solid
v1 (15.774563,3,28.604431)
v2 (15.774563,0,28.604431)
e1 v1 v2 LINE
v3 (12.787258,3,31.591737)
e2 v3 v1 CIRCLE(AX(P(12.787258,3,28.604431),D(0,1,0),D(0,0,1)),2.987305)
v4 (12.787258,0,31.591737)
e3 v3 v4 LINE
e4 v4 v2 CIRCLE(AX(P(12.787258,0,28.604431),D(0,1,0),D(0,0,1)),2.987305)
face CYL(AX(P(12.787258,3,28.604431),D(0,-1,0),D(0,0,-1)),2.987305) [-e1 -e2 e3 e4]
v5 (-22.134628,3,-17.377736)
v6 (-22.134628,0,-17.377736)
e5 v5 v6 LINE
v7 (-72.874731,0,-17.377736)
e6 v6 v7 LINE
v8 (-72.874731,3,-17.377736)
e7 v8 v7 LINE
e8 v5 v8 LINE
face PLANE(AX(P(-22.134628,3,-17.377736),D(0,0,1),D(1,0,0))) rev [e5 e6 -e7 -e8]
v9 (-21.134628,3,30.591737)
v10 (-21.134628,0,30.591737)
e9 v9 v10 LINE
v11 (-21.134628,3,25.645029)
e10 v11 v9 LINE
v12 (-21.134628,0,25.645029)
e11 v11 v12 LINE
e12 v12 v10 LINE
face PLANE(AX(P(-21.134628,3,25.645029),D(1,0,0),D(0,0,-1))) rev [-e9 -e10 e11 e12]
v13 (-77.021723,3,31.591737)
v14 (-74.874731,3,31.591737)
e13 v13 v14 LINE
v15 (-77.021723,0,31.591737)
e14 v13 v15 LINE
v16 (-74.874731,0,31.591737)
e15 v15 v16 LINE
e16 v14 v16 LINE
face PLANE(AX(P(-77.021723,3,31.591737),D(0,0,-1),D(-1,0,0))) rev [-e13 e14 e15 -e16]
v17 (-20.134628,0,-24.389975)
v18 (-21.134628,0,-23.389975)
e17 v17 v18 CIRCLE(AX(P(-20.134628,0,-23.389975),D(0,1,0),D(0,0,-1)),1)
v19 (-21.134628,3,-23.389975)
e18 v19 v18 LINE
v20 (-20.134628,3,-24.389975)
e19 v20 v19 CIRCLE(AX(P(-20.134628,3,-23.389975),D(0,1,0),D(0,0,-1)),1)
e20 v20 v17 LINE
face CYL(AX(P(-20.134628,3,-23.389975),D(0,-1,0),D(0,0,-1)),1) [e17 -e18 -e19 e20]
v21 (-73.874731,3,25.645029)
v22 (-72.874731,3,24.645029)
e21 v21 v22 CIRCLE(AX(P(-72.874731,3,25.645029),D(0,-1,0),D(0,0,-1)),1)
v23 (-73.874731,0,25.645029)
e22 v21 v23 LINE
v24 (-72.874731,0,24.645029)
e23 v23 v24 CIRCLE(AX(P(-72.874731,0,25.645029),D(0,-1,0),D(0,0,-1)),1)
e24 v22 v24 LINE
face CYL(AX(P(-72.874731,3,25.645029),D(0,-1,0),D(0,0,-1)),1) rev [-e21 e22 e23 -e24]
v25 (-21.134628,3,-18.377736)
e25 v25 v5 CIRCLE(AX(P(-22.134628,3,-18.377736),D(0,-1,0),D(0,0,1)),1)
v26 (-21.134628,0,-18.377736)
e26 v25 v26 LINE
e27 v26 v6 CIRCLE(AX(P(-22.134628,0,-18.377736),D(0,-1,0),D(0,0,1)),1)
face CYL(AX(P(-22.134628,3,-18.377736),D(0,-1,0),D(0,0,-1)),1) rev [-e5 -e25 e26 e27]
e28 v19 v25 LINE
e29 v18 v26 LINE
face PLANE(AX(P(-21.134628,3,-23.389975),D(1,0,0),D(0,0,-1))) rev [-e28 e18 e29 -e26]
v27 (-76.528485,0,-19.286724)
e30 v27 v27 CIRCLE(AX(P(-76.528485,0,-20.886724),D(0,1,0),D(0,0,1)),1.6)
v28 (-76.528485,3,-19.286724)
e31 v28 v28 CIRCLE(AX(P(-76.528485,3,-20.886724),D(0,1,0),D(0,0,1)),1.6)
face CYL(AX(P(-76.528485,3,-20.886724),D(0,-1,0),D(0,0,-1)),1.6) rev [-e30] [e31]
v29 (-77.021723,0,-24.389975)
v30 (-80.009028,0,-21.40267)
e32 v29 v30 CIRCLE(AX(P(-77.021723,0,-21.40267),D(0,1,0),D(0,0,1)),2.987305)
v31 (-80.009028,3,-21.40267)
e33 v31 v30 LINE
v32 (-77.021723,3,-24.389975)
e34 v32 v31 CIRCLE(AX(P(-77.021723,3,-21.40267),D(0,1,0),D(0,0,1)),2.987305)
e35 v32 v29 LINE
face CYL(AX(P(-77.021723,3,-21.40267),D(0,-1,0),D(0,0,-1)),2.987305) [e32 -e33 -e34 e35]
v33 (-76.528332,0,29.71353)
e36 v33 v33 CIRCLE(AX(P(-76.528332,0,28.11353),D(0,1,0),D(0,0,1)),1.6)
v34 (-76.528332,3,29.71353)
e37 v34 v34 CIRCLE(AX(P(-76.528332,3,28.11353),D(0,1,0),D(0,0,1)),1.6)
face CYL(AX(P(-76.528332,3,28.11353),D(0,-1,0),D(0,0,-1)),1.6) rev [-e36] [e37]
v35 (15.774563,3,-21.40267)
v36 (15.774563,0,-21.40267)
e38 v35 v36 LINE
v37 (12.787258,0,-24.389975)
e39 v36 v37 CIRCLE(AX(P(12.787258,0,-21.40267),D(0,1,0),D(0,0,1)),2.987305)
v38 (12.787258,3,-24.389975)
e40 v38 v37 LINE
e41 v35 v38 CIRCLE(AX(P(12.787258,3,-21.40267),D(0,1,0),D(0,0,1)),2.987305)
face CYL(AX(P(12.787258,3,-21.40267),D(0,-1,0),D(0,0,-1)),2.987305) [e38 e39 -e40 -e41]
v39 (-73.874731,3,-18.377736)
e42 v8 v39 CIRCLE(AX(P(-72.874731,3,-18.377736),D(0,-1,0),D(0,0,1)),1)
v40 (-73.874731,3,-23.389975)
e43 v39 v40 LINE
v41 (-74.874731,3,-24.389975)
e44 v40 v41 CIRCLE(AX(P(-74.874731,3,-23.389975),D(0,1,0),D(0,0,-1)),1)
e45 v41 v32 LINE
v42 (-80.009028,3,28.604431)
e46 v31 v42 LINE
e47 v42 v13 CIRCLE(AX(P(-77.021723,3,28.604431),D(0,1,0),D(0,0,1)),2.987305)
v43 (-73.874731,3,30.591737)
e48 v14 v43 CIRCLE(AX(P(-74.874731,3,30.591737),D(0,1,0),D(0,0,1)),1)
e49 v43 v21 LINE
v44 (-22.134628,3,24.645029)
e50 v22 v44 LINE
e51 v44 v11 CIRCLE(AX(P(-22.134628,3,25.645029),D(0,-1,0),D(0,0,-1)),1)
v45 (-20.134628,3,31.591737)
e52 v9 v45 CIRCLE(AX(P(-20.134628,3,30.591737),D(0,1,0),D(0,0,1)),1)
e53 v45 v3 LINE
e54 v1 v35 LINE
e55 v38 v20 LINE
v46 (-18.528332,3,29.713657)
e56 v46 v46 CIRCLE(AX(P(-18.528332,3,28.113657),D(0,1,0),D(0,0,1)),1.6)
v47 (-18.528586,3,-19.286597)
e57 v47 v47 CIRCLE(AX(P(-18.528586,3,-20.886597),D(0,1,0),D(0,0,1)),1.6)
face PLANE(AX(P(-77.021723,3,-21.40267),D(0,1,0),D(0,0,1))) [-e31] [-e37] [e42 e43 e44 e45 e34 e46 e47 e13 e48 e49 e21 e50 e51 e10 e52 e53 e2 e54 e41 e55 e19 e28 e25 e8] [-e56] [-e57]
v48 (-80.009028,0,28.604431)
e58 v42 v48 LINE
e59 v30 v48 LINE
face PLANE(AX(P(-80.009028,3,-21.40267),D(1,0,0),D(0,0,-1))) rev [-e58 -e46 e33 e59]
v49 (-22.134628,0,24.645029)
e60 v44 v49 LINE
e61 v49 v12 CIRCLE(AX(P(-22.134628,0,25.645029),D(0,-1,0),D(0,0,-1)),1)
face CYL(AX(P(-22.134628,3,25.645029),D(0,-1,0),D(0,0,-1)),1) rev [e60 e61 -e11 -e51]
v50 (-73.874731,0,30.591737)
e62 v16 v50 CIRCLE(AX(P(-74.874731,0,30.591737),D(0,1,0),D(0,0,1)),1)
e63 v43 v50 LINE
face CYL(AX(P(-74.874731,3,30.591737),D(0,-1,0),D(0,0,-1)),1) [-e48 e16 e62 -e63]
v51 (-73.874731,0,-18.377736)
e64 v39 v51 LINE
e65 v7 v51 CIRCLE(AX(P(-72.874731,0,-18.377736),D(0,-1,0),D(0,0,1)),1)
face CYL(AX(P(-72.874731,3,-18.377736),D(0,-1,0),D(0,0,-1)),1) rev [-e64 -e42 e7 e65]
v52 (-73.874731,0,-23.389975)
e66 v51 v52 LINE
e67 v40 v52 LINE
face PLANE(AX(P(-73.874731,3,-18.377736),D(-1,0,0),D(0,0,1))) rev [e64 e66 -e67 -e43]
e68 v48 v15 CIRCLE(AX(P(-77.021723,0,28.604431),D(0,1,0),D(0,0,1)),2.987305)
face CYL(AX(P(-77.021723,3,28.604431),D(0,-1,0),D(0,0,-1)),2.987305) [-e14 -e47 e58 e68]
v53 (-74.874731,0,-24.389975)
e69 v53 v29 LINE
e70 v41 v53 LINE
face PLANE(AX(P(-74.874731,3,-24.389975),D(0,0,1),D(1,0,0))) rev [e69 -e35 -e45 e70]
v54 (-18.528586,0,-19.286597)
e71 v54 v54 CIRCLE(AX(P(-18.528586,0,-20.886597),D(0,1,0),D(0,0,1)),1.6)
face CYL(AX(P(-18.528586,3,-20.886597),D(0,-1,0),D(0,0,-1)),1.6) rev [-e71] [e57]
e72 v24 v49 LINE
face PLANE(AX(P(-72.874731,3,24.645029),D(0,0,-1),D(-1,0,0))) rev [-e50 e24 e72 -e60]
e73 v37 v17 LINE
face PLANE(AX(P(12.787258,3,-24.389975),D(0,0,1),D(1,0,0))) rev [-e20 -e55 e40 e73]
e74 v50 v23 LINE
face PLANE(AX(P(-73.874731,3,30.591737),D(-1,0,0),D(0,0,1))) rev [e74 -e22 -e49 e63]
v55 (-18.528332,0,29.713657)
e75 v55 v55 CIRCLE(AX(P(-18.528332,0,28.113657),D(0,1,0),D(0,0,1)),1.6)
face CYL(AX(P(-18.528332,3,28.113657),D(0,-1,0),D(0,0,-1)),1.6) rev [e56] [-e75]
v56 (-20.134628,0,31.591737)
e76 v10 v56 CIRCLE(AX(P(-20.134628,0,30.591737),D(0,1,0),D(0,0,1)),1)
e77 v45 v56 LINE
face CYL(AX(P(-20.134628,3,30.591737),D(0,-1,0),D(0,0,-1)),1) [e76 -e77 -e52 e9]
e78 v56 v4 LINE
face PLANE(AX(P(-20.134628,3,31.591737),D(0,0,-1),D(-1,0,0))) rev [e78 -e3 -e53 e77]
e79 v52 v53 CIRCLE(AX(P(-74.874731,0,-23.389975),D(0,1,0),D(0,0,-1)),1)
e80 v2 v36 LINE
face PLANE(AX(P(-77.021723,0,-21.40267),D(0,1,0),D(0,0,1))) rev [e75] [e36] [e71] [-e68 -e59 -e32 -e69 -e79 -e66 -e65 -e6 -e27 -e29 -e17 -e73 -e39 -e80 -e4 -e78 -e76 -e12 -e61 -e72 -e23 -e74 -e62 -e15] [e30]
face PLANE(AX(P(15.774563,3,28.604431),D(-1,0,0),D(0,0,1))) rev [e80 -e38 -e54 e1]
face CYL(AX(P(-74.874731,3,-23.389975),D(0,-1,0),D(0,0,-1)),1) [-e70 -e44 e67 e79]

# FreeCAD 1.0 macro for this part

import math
import FreeCAD as App
import Part
import Sketcher
Q = App.Units.Quantity

doc = App.newDocument("Part")
body = doc.addObject("PartDesign::Body", "Body")

# Sketch on XZ plane
sketch1 = doc.addObject("Sketcher::SketchObject", "Sketch")
body.addObject(sketch1)
sketch1.AttachmentSupport = (doc.XZ_Plane, [""])
sketch1.MapMode = "FlatFace"
sketch1.addGeometry([
    Part.LineSegment(App.Vector(-21.134628, -23.389975, 0), App.Vector(-21.134628, -18.377736, 0)),  # 0
    Part.ArcOfCircle(Part.Circle(App.Vector(-22.134628, -18.377736, 0), App.Vector(0, 0, 1), 1), math.radians(0), math.radians(90)),  # 1
    Part.LineSegment(App.Vector(-22.134628, -17.377736, 0), App.Vector(-72.874731, -17.377736, 0)),  # 2
    Part.ArcOfCircle(Part.Circle(App.Vector(-72.874731, -18.377736, 0), App.Vector(0, 0, 1), 1), math.radians(90), math.radians(180)),  # 3
    Part.LineSegment(App.Vector(-73.874731, -18.377736, 0), App.Vector(-73.874731, -23.389975, 0)),  # 4
    Part.ArcOfCircle(Part.Circle(App.Vector(-74.874731, -23.389975, 0), App.Vector(0, 0, 1), 1), math.radians(-90), math.radians(0)),  # 5
    Part.LineSegment(App.Vector(-74.874731, -24.389975, 0), App.Vector(-77.021723, -24.389975, 0)),  # 6
    Part.ArcOfCircle(Part.Circle(App.Vector(-77.021723, -21.40267, 0), App.Vector(0, 0, 1), 2.987305), math.radians(180), math.radians(270)),  # 7
    Part.LineSegment(App.Vector(-80.009028, -21.40267, 0), App.Vector(-80.009028, 28.604431, 0)),  # 8
    Part.ArcOfCircle(Part.Circle(App.Vector(-77.021723, 28.604431, 0), App.Vector(0, 0, 1), 2.987305), math.radians(90), math.radians(180)),  # 9
    Part.LineSegment(App.Vector(-77.021723, 31.591737, 0), App.Vector(-74.874731, 31.591737, 0)),  # 10
    Part.ArcOfCircle(Part.Circle(App.Vector(-74.874731, 30.591737, 0), App.Vector(0, 0, 1), 1), math.radians(0), math.radians(90)),  # 11
    Part.LineSegment(App.Vector(-73.874731, 30.591737, 0), App.Vector(-73.874731, 25.645029, 0)),  # 12
    Part.ArcOfCircle(Part.Circle(App.Vector(-72.874731, 25.645029, 0), App.Vector(0, 0, 1), 1), math.radians(-180), math.radians(-90)),  # 13
    Part.LineSegment(App.Vector(-72.874731, 24.645029, 0), App.Vector(-22.134628, 24.645029, 0)),  # 14
    Part.ArcOfCircle(Part.Circle(App.Vector(-22.134628, 25.645029, 0), App.Vector(0, 0, 1), 1), math.radians(-90), math.radians(0)),  # 15
    Part.LineSegment(App.Vector(-21.134628, 25.645029, 0), App.Vector(-21.134628, 30.591737, 0)),  # 16
    Part.ArcOfCircle(Part.Circle(App.Vector(-20.134628, 30.591737, 0), App.Vector(0, 0, 1), 1), math.radians(90), math.radians(180)),  # 17
    Part.LineSegment(App.Vector(-20.134628, 31.591737, 0), App.Vector(12.787258, 31.591737, 0)),  # 18
    Part.ArcOfCircle(Part.Circle(App.Vector(12.787258, 28.604431, 0), App.Vector(0, 0, 1), 2.987305), math.radians(0), math.radians(90)),  # 19
    Part.LineSegment(App.Vector(15.774563, 28.604431, 0), App.Vector(15.774563, -21.40267, 0)),  # 20
    Part.ArcOfCircle(Part.Circle(App.Vector(12.787258, -21.40267, 0), App.Vector(0, 0, 1), 2.987305), math.radians(-90), math.radians(0)),  # 21
    Part.LineSegment(App.Vector(12.787258, -24.389975, 0), App.Vector(-20.134628, -24.389975, 0)),  # 22
    Part.ArcOfCircle(Part.Circle(App.Vector(-20.134628, -23.389975, 0), App.Vector(0, 0, 1), 1), math.radians(-180), math.radians(-90)),  # 23
    Part.Circle(App.Vector(-76.528332, 28.11353, 0), App.Vector(0, 0, 1), 1.6),  # 24
    Part.Circle(App.Vector(-18.528332, 28.113657, 0), App.Vector(0, 0, 1), 1.6),  # 25
    Part.Circle(App.Vector(-76.528485, -20.886724, 0), App.Vector(0, 0, 1), 1.6),  # 26
    Part.Circle(App.Vector(-18.528586, -20.886597, 0), App.Vector(0, 0, 1), 1.6),  # 27
], False)
sketch1.addConstraint([
    Sketcher.Constraint("Tangent", 0, 2, 1, 1),
    Sketcher.Constraint("Tangent", 1, 2, 2, 1),
    Sketcher.Constraint("Tangent", 2, 2, 3, 1),
    Sketcher.Constraint("Tangent", 3, 2, 4, 1),
    Sketcher.Constraint("Tangent", 4, 2, 5, 2),
    Sketcher.Constraint("Tangent", 5, 1, 6, 1),
    Sketcher.Constraint("Tangent", 6, 2, 7, 2),
    Sketcher.Constraint("Tangent", 7, 1, 8, 1),
    Sketcher.Constraint("Tangent", 8, 2, 9, 2),
    Sketcher.Constraint("Tangent", 9, 1, 10, 1),
    Sketcher.Constraint("Tangent", 10, 2, 11, 2),
    Sketcher.Constraint("Tangent", 11, 1, 12, 1),
    Sketcher.Constraint("Tangent", 12, 2, 13, 1),
    Sketcher.Constraint("Tangent", 13, 2, 14, 1),
    Sketcher.Constraint("Tangent", 14, 2, 15, 1),
    Sketcher.Constraint("Tangent", 15, 2, 16, 1),
    Sketcher.Constraint("Tangent", 16, 2, 17, 2),
    Sketcher.Constraint("Tangent", 17, 1, 18, 1),
    Sketcher.Constraint("Tangent", 18, 2, 19, 2),
    Sketcher.Constraint("Tangent", 19, 1, 20, 1),
    Sketcher.Constraint("Tangent", 20, 2, 21, 2),
    Sketcher.Constraint("Tangent", 21, 1, 22, 1),
    Sketcher.Constraint("Tangent", 22, 2, 23, 2),
    Sketcher.Constraint("Tangent", 23, 1, 0, 1),
    Sketcher.Constraint("Vertical", 0),
    Sketcher.Constraint("Horizontal", 2),
    Sketcher.Constraint("Vertical", 4),
    Sketcher.Constraint("Horizontal", 6),
    Sketcher.Constraint("Vertical", 8),
    Sketcher.Constraint("Horizontal", 10),
    Sketcher.Constraint("Vertical", 12),
    Sketcher.Constraint("Horizontal", 14),
    Sketcher.Constraint("Vertical", 16),
    Sketcher.Constraint("Horizontal", 18),
    Sketcher.Constraint("Vertical", 20),
    Sketcher.Constraint("Horizontal", 22),
    Sketcher.Constraint("Equal", 1, 3),
    Sketcher.Constraint("Equal", 3, 5),
    Sketcher.Constraint("Equal", 7, 9),
    Sketcher.Constraint("Equal", 5, 11),
    Sketcher.Constraint("Equal", 11, 13),
    Sketcher.Constraint("Equal", 13, 15),
    Sketcher.Constraint("Equal", 15, 17),
    Sketcher.Constraint("Equal", 9, 19),
    Sketcher.Constraint("Equal", 19, 21),
    Sketcher.Constraint("Equal", 17, 23),
    Sketcher.Constraint("Equal", 24, 25),
    Sketcher.Constraint("Equal", 25, 26),
    Sketcher.Constraint("Equal", 26, 27),
    Sketcher.Constraint("Horizontal", 11, 3, 17, 3),
    Sketcher.Constraint("Horizontal", 7, 3, 21, 3),
    Sketcher.Constraint("Vertical", 5, 3, 11, 3),
    Sketcher.Constraint("Vertical", 1, 3, 15, 3),
    Sketcher.Constraint("Radius", 1, Q("1 mm")),
    Sketcher.Constraint("Diameter", 24, Q("3.2 mm")),
    Sketcher.Constraint("DistanceY", 8, 1, 8, 2, Q("50.007102 mm")),
    Sketcher.Constraint("Radius", 7, Q("2.987305 mm")),
    Sketcher.Constraint("DistanceY", 0, 1, 0, 2, Q("5.012239 mm")),
    Sketcher.Constraint("DistanceY", 7, 3, 13, 3, Q("47.047699 mm")),
    Sketcher.Constraint("DistanceY", 24, 3, 9, 3, Q("0.490902 mm")),
    Sketcher.Constraint("DistanceX", 24, 3, 11, 3, Q("1.653601 mm")),
    Sketcher.Constraint("DistanceX", 2, 2, 2, 1, Q("50.740103 mm")),
    Sketcher.Constraint("DistanceX", 6, 2, 6, 1, Q("2.146992 mm")),
    Sketcher.Constraint("DistanceX", 18, 1, 18, 2, Q("32.921887 mm")),
    Sketcher.Constraint("DistanceX", 1, 3, -1, 1, Q("22.134628 mm")),
    Sketcher.Constraint("DistanceY", 7, 3, -1, 1, Q("21.40267 mm")),
    Sketcher.Constraint("DistanceY", 25, 3, 17, 3, Q("2.47808 mm")),
    Sketcher.Constraint("DistanceX", 25, 3, 19, 3, Q("31.315591 mm")),
    Sketcher.Constraint("DistanceX", 7, 3, 26, 3, Q("0.493239 mm")),
    Sketcher.Constraint("DistanceY", 5, 3, 26, 3, Q("2.503251 mm")),
    Sketcher.Constraint("DistanceX", 23, 3, 27, 3, Q("1.606042 mm")),
    Sketcher.Constraint("DistanceY", 23, 3, 27, 3, Q("2.503378 mm")),
])
pad1 = doc.addObject("PartDesign::Pad", "Pad")
body.addObject(pad1)
pad1.Profile = sketch1
pad1.Length = 3
pad1.Reversed = True

doc.recompute()
